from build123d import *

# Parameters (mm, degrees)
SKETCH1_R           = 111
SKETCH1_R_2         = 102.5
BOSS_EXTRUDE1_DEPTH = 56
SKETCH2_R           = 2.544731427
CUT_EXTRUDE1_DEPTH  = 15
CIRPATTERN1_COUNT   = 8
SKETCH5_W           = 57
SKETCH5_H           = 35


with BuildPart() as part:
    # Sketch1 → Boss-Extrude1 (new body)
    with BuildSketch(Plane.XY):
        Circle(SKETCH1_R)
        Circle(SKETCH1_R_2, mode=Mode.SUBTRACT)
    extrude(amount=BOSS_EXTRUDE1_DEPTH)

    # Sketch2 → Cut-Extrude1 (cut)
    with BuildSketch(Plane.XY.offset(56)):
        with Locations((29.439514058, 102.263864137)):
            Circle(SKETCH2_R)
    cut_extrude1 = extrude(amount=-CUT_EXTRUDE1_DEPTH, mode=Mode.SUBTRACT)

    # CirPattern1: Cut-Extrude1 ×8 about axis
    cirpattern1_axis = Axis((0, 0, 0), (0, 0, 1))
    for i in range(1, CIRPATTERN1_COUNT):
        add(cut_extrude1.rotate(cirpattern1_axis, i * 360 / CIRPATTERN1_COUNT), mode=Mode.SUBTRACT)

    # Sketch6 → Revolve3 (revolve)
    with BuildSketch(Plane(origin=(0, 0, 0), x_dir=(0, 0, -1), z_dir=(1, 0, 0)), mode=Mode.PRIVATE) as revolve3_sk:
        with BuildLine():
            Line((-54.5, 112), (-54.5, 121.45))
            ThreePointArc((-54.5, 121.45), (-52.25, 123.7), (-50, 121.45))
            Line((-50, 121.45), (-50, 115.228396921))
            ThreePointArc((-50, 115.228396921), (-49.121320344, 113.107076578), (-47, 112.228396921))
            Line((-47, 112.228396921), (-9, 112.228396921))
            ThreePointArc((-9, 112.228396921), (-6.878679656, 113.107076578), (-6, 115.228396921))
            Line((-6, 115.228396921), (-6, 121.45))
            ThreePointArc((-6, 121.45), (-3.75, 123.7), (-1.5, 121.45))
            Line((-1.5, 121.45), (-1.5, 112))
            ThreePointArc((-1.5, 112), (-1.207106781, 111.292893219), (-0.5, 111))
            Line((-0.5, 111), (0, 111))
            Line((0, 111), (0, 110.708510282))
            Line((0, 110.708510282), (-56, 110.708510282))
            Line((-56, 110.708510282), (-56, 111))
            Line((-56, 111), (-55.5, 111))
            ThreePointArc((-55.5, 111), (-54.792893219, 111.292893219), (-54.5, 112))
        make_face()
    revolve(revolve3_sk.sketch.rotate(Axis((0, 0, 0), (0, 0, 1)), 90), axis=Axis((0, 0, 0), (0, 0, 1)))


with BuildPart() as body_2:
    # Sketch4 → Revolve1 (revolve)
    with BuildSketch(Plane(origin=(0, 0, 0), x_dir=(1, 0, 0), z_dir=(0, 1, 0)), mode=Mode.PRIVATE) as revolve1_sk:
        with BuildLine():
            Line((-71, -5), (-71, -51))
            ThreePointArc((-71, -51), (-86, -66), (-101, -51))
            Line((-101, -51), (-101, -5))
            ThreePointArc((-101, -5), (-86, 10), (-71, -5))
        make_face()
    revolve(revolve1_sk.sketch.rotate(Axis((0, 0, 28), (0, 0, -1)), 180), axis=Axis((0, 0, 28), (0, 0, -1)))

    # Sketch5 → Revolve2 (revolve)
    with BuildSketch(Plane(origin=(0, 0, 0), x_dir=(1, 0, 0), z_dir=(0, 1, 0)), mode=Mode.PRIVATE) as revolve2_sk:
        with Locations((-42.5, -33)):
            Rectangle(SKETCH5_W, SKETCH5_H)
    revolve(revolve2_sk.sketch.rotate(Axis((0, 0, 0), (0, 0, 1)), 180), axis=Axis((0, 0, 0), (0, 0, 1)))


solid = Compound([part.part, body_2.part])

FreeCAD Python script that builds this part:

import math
import FreeCAD as App
import Part
import Sketcher
from FreeCAD import Vector
Q = App.Units.Quantity


def add_polygon(sketch, points):
    """Adds a closed chain of lines whose ends are joined by coincident constraints."""
    first, n = sketch.GeometryCount, len(points)
    for a, b in zip(points, points[1:] + points[:1]):
        sketch.addGeometry(Part.LineSegment(App.Vector(*a, 0), App.Vector(*b, 0)), False)
    for i in range(n):
        sketch.addConstraint(Sketcher.Constraint("Coincident", first + i, 2, first + (i + 1) % n, 1))

doc = App.newDocument("Part")
params = doc.addObject("Spreadsheet::Sheet", "Params")
for row, (alias, value) in enumerate([
    ("sketch1_diameter", "222 mm"),
    ("sketch1_diameter2", "205 mm"),
    ("pad1_length", "56 mm"),
    ("pocket1_length", "15 mm"),
    ("sketch3_radius", "1 mm"),
    ("sketch3_radius2", "3 mm"),
    ("sketch3_height", "56 mm"),
    ("sketch3_height2", "38 mm"),
    ("sketch3_radius3", "2.25 mm"),
    ("revolution_angle", "360 deg"),
    ("sketch4_radius", "15 mm"),
    ("sketch4_height", "46 mm"),
    ("revolution2_angle", "360 deg"),
    ("sketch5_width", "57 mm"),
    ("sketch5_height", "35 mm"),
    ("revolution3_angle", "360 deg"),
], start=1):
    params.set(f"A{row}", alias)
    params.set(f"B{row}", "=" + value)
    params.setAlias(f"B{row}", alias)

body = doc.addObject("PartDesign::Body", "Body")

# Sketch on XY plane
sketch1 = body.newObject("Sketcher::SketchObject", "Sketch")
sketch1.AttachmentSupport = (doc.getObject("XY_Plane"), [""])
sketch1.MapMode = "FlatFace"
sketch1.addGeometry([
    Part.Circle(Vector(0, 0, 0), Vector(0, 0, 1), 111),
    Part.Circle(Vector(0, 0, 0), Vector(0, 0, 1), 102),
], False)
sketch1.addConstraint([
    Sketcher.Constraint("Coincident", 0, 3, -1, 1),
    Sketcher.Constraint("Coincident", 1, 3, -1, 1),
    Sketcher.Constraint("Diameter", 0, Q("222 mm")),
    Sketcher.Constraint("Diameter", 1, Q("205 mm")),
])
sketch1.setExpression("Constraints[2]", "Params.sketch1_diameter")
sketch1.setExpression("Constraints[3]", "Params.sketch1_diameter2")
pad1 = body.newObject("PartDesign::Pad", "Pad")
pad1.Profile = sketch1
pad1.setExpression("Length", "Params.pad1_length")

# Sketch on XY plane
sketch2 = body.newObject("Sketcher::SketchObject", "Sketch001")
sketch2.AttachmentSupport = (doc.getObject("XY_Plane"), [""])
sketch2.MapMode = "FlatFace"
sketch2.AttachmentOffset = App.Placement(Vector(0, 0, 56), App.Rotation())
sketch2.addGeometry(Part.Circle(Vector(29.4, 102.3, 0), Vector(0, 0, 1), 2.5), False)
sketch2.addConstraint([
    Sketcher.Constraint("Diameter", 0, Q("5.089463 mm")),
    Sketcher.Constraint("DistanceX", -1, 1, 0, 3, Q("29.439514 mm")),
    Sketcher.Constraint("DistanceY", -1, 1, 0, 3, Q("102.263864 mm")),
])
pocket1 = body.newObject("PartDesign::Pocket", "Pocket")
pocket1.Profile = sketch2
pocket1.setExpression("Length", "Params.pocket1_length")
doc.recompute()

polarpattern = body.newObject("PartDesign::PolarPattern", "PolarPattern")
polarpattern.Originals = [pocket1]
polarpattern.Axis = (doc.getObject("Z_Axis"), [""])
polarpattern.Angle = 360
polarpattern.Occurrences = 8
body.Tip = polarpattern

# Sketch on YZ plane
sketch3 = body.newObject("Sketcher::SketchObject", "Sketch002")
sketch3.AttachmentSupport = (doc.getObject("YZ_Plane"), [""])
sketch3.MapMode = "FlatFace"
sketch3.addGeometry([
    Part.LineSegment(Vector(121.45, 54.5, 0), Vector(112, 54.5, 0)),  # 0
    Part.ArcOfCircle(Part.Circle(Vector(112, 55.5, 0), Vector(0, 0, 1), 1), math.radians(-180), math.radians(-90)),  # 1
    Part.LineSegment(Vector(111, 55.5, 0), Vector(111, 56, 0)),  # 2
    Part.LineSegment(Vector(111, 56, 0), Vector(110.71, 56, 0)),  # 3
    Part.LineSegment(Vector(110.71, 56, 0), Vector(110.71, 0, 0)),  # 4
    Part.LineSegment(Vector(110.71, 0, 0), Vector(111, 0, 0)),  # 5
    Part.LineSegment(Vector(111, 0, 0), Vector(111, 0.5, 0)),  # 6
    Part.ArcOfCircle(Part.Circle(Vector(112, 0.5, 0), Vector(0, 0, 1), 1), math.radians(90), math.radians(180)),  # 7
    Part.LineSegment(Vector(112, 1.5, 0), Vector(121.45, 1.5, 0)),  # 8
    Part.ArcOfCircle(Part.Circle(Vector(121.45, 3.75, 0), Vector(0, 0, 1), 2.25), math.radians(-90), math.radians(90)),  # 9
    Part.LineSegment(Vector(121.45, 6, 0), Vector(115.23, 6, 0)),  # 10
    Part.ArcOfCircle(Part.Circle(Vector(115.23, 9, 0), Vector(0, 0, 1), 3), math.radians(180), math.radians(270)),  # 11
    Part.LineSegment(Vector(112.23, 9, 0), Vector(112.23, 47, 0)),  # 12
    Part.ArcOfCircle(Part.Circle(Vector(115.23, 47, 0), Vector(0, 0, 1), 3), math.radians(90), math.radians(180)),  # 13
    Part.LineSegment(Vector(115.23, 50, 0), Vector(121.45, 50, 0)),  # 14
    Part.ArcOfCircle(Part.Circle(Vector(121.45, 52.25, 0), Vector(0, 0, 1), 2.25), math.radians(-90), math.radians(90)),  # 15
], False)
sketch3.addConstraint([
    Sketcher.Constraint("Tangent", 0, 2, 1, 2),
    Sketcher.Constraint("Tangent", 1, 1, 2, 1),
    Sketcher.Constraint("Coincident", 2, 2, 3, 1),
    Sketcher.Constraint("Coincident", 3, 2, 4, 1),
    Sketcher.Constraint("Coincident", 4, 2, 5, 1),
    Sketcher.Constraint("Coincident", 5, 2, 6, 1),
    Sketcher.Constraint("Tangent", 6, 2, 7, 2),
    Sketcher.Constraint("Tangent", 7, 1, 8, 1),
    Sketcher.Constraint("Tangent", 8, 2, 9, 1),
    Sketcher.Constraint("Tangent", 9, 2, 10, 1),
    Sketcher.Constraint("Tangent", 10, 2, 11, 2),
    Sketcher.Constraint("Tangent", 11, 1, 12, 1),
    Sketcher.Constraint("Tangent", 12, 2, 13, 2),
    Sketcher.Constraint("Tangent", 13, 1, 14, 1),
    Sketcher.Constraint("Tangent", 14, 2, 15, 1),
    Sketcher.Constraint("Tangent", 15, 2, 0, 1),
    Sketcher.Constraint("Horizontal", 0),
    Sketcher.Constraint("Vertical", 2),
    Sketcher.Constraint("Horizontal", 3),
    Sketcher.Constraint("Vertical", 4),
    Sketcher.Constraint("Horizontal", 5),
    Sketcher.Constraint("Vertical", 6),
    Sketcher.Constraint("Horizontal", 8),
    Sketcher.Constraint("Horizontal", 10),
    Sketcher.Constraint("Vertical", 12),
    Sketcher.Constraint("Horizontal", 14),
    Sketcher.Constraint("Equal", 1, 7),
    Sketcher.Constraint("Equal", 11, 13),
    Sketcher.Constraint("Equal", 9, 15),
    Sketcher.Constraint("PointOnObject", 4, 2, -1),
    Sketcher.Constraint("Vertical", 1, 3, 7, 3),
    Sketcher.Constraint("Vertical", 9, 3, 15, 3),
    Sketcher.Constraint("Equal", 2, 6),
    Sketcher.Constraint("Radius", 1, Q("1 mm")),
    Sketcher.Constraint("Radius", 11, Q("3 mm")),
    Sketcher.Constraint("DistanceY", 4, 2, 4, 1, Q("56 mm")),
    Sketcher.Constraint("DistanceY", 12, 1, 12, 2, Q("38 mm")),
    Sketcher.Constraint("Radius", 9, Q("2.25 mm")),
    Sketcher.Constraint("DistanceX", -1, 1, 1, 3, Q("112 mm")),
    Sketcher.Constraint("DistanceX", 0, 2, 0, 1, Q("9.45 mm")),
    Sketcher.Constraint("DistanceX", 3, 2, 3, 1, Q("0.29149 mm")),
    Sketcher.Constraint("DistanceX", 10, 2, 10, 1, Q("6.221603 mm")),
])
sketch3.setExpression("Constraints[33]", "Params.sketch3_radius")
sketch3.setExpression("Constraints[34]", "Params.sketch3_radius2")
sketch3.setExpression("Constraints[35]", "Params.sketch3_height")
sketch3.setExpression("Constraints[36]", "Params.sketch3_height2")
sketch3.setExpression("Constraints[37]", "Params.sketch3_radius3")
revolution = body.newObject("PartDesign::Revolution", "Revolution")
revolution.Profile = sketch3
revolution.ReferenceAxis = (sketch3, ["V_Axis"])
revolution.setExpression("Angle", "Params.revolution_angle")
body2 = doc.addObject("PartDesign::Body", "Body001")

# Sketch on XZ plane
sketch4 = body2.newObject("Sketcher::SketchObject", "Sketch003")
sketch4.AttachmentSupport = (doc.getObject("XZ_Plane001"), [""])
sketch4.MapMode = "FlatFace"
sketch4.addGeometry([
    Part.LineSegment(Vector(-71, 51, 0), Vector(-71, 5, 0)),
    Part.ArcOfCircle(Part.Circle(Vector(-86, 5, 0), Vector(0, 0, 1), 15), math.radians(180), math.radians(360)),
    Part.LineSegment(Vector(-101, 5, 0), Vector(-101, 51, 0)),
    Part.ArcOfCircle(Part.Circle(Vector(-86, 51, 0), Vector(0, 0, 1), 15), math.radians(0), math.radians(180)),
], False)
sketch4.addConstraint([
    Sketcher.Constraint("Tangent", 0, 2, 1, 2),
    Sketcher.Constraint("Tangent", 1, 1, 2, 1),
    Sketcher.Constraint("Tangent", 2, 2, 3, 2),
    Sketcher.Constraint("Tangent", 3, 1, 0, 1),
    Sketcher.Constraint("Vertical", 0),
    Sketcher.Constraint("Vertical", 2),
    Sketcher.Constraint("Radius", 1, Q("15 mm")),
    Sketcher.Constraint("DistanceY", 0, 2, 0, 1, Q("46 mm")),
    Sketcher.Constraint("DistanceX", 1, 3, -1, 1, Q("86 mm")),
    Sketcher.Constraint("DistanceY", -1, 1, 1, 3, Q("5 mm")),
])
sketch4.setExpression("Constraints[6]", "Params.sketch4_radius")
sketch4.setExpression("Constraints[7]", "Params.sketch4_height")
revolution2 = body2.newObject("PartDesign::Revolution", "Revolution001")
revolution2.Profile = sketch4
revolution2.ReferenceAxis = (sketch4, ["V_Axis"])
revolution2.setExpression("Angle", "Params.revolution2_angle")

# Sketch on XZ plane
sketch5 = body2.newObject("Sketcher::SketchObject", "Sketch004")
sketch5.AttachmentSupport = (doc.getObject("XZ_Plane001"), [""])
sketch5.MapMode = "FlatFace"
add_polygon(sketch5, [(-71, 16), (-71, 50), (-14, 50), (-14, 16)])  # lines 0-3
sketch5.addConstraint([
    Sketcher.Constraint("Vertical", 0),
    Sketcher.Constraint("Horizontal", 1),
    Sketcher.Constraint("Vertical", 2),
    Sketcher.Constraint("Horizontal", 3),
    Sketcher.Constraint("DistanceX", 1, 1, 1, 2, Q("57 mm")),
    Sketcher.Constraint("DistanceY", 0, 1, 0, 2, Q("35 mm")),
    Sketcher.Constraint("DistanceX", 0, 2, -1, 1, Q("71 mm")),
    Sketcher.Constraint("DistanceY", -1, 1, 0, 2, Q("50.5 mm")),
])
sketch5.setExpression("Constraints[8]", "Params.sketch5_width")
sketch5.setExpression("Constraints[9]", "Params.sketch5_height")
revolution3 = body2.newObject("PartDesign::Revolution", "Revolution002")
revolution3.Profile = sketch5
revolution3.ReferenceAxis = (sketch5, ["V_Axis"])
revolution3.setExpression("Angle", "Params.revolution3_angle")

doc.recompute()
